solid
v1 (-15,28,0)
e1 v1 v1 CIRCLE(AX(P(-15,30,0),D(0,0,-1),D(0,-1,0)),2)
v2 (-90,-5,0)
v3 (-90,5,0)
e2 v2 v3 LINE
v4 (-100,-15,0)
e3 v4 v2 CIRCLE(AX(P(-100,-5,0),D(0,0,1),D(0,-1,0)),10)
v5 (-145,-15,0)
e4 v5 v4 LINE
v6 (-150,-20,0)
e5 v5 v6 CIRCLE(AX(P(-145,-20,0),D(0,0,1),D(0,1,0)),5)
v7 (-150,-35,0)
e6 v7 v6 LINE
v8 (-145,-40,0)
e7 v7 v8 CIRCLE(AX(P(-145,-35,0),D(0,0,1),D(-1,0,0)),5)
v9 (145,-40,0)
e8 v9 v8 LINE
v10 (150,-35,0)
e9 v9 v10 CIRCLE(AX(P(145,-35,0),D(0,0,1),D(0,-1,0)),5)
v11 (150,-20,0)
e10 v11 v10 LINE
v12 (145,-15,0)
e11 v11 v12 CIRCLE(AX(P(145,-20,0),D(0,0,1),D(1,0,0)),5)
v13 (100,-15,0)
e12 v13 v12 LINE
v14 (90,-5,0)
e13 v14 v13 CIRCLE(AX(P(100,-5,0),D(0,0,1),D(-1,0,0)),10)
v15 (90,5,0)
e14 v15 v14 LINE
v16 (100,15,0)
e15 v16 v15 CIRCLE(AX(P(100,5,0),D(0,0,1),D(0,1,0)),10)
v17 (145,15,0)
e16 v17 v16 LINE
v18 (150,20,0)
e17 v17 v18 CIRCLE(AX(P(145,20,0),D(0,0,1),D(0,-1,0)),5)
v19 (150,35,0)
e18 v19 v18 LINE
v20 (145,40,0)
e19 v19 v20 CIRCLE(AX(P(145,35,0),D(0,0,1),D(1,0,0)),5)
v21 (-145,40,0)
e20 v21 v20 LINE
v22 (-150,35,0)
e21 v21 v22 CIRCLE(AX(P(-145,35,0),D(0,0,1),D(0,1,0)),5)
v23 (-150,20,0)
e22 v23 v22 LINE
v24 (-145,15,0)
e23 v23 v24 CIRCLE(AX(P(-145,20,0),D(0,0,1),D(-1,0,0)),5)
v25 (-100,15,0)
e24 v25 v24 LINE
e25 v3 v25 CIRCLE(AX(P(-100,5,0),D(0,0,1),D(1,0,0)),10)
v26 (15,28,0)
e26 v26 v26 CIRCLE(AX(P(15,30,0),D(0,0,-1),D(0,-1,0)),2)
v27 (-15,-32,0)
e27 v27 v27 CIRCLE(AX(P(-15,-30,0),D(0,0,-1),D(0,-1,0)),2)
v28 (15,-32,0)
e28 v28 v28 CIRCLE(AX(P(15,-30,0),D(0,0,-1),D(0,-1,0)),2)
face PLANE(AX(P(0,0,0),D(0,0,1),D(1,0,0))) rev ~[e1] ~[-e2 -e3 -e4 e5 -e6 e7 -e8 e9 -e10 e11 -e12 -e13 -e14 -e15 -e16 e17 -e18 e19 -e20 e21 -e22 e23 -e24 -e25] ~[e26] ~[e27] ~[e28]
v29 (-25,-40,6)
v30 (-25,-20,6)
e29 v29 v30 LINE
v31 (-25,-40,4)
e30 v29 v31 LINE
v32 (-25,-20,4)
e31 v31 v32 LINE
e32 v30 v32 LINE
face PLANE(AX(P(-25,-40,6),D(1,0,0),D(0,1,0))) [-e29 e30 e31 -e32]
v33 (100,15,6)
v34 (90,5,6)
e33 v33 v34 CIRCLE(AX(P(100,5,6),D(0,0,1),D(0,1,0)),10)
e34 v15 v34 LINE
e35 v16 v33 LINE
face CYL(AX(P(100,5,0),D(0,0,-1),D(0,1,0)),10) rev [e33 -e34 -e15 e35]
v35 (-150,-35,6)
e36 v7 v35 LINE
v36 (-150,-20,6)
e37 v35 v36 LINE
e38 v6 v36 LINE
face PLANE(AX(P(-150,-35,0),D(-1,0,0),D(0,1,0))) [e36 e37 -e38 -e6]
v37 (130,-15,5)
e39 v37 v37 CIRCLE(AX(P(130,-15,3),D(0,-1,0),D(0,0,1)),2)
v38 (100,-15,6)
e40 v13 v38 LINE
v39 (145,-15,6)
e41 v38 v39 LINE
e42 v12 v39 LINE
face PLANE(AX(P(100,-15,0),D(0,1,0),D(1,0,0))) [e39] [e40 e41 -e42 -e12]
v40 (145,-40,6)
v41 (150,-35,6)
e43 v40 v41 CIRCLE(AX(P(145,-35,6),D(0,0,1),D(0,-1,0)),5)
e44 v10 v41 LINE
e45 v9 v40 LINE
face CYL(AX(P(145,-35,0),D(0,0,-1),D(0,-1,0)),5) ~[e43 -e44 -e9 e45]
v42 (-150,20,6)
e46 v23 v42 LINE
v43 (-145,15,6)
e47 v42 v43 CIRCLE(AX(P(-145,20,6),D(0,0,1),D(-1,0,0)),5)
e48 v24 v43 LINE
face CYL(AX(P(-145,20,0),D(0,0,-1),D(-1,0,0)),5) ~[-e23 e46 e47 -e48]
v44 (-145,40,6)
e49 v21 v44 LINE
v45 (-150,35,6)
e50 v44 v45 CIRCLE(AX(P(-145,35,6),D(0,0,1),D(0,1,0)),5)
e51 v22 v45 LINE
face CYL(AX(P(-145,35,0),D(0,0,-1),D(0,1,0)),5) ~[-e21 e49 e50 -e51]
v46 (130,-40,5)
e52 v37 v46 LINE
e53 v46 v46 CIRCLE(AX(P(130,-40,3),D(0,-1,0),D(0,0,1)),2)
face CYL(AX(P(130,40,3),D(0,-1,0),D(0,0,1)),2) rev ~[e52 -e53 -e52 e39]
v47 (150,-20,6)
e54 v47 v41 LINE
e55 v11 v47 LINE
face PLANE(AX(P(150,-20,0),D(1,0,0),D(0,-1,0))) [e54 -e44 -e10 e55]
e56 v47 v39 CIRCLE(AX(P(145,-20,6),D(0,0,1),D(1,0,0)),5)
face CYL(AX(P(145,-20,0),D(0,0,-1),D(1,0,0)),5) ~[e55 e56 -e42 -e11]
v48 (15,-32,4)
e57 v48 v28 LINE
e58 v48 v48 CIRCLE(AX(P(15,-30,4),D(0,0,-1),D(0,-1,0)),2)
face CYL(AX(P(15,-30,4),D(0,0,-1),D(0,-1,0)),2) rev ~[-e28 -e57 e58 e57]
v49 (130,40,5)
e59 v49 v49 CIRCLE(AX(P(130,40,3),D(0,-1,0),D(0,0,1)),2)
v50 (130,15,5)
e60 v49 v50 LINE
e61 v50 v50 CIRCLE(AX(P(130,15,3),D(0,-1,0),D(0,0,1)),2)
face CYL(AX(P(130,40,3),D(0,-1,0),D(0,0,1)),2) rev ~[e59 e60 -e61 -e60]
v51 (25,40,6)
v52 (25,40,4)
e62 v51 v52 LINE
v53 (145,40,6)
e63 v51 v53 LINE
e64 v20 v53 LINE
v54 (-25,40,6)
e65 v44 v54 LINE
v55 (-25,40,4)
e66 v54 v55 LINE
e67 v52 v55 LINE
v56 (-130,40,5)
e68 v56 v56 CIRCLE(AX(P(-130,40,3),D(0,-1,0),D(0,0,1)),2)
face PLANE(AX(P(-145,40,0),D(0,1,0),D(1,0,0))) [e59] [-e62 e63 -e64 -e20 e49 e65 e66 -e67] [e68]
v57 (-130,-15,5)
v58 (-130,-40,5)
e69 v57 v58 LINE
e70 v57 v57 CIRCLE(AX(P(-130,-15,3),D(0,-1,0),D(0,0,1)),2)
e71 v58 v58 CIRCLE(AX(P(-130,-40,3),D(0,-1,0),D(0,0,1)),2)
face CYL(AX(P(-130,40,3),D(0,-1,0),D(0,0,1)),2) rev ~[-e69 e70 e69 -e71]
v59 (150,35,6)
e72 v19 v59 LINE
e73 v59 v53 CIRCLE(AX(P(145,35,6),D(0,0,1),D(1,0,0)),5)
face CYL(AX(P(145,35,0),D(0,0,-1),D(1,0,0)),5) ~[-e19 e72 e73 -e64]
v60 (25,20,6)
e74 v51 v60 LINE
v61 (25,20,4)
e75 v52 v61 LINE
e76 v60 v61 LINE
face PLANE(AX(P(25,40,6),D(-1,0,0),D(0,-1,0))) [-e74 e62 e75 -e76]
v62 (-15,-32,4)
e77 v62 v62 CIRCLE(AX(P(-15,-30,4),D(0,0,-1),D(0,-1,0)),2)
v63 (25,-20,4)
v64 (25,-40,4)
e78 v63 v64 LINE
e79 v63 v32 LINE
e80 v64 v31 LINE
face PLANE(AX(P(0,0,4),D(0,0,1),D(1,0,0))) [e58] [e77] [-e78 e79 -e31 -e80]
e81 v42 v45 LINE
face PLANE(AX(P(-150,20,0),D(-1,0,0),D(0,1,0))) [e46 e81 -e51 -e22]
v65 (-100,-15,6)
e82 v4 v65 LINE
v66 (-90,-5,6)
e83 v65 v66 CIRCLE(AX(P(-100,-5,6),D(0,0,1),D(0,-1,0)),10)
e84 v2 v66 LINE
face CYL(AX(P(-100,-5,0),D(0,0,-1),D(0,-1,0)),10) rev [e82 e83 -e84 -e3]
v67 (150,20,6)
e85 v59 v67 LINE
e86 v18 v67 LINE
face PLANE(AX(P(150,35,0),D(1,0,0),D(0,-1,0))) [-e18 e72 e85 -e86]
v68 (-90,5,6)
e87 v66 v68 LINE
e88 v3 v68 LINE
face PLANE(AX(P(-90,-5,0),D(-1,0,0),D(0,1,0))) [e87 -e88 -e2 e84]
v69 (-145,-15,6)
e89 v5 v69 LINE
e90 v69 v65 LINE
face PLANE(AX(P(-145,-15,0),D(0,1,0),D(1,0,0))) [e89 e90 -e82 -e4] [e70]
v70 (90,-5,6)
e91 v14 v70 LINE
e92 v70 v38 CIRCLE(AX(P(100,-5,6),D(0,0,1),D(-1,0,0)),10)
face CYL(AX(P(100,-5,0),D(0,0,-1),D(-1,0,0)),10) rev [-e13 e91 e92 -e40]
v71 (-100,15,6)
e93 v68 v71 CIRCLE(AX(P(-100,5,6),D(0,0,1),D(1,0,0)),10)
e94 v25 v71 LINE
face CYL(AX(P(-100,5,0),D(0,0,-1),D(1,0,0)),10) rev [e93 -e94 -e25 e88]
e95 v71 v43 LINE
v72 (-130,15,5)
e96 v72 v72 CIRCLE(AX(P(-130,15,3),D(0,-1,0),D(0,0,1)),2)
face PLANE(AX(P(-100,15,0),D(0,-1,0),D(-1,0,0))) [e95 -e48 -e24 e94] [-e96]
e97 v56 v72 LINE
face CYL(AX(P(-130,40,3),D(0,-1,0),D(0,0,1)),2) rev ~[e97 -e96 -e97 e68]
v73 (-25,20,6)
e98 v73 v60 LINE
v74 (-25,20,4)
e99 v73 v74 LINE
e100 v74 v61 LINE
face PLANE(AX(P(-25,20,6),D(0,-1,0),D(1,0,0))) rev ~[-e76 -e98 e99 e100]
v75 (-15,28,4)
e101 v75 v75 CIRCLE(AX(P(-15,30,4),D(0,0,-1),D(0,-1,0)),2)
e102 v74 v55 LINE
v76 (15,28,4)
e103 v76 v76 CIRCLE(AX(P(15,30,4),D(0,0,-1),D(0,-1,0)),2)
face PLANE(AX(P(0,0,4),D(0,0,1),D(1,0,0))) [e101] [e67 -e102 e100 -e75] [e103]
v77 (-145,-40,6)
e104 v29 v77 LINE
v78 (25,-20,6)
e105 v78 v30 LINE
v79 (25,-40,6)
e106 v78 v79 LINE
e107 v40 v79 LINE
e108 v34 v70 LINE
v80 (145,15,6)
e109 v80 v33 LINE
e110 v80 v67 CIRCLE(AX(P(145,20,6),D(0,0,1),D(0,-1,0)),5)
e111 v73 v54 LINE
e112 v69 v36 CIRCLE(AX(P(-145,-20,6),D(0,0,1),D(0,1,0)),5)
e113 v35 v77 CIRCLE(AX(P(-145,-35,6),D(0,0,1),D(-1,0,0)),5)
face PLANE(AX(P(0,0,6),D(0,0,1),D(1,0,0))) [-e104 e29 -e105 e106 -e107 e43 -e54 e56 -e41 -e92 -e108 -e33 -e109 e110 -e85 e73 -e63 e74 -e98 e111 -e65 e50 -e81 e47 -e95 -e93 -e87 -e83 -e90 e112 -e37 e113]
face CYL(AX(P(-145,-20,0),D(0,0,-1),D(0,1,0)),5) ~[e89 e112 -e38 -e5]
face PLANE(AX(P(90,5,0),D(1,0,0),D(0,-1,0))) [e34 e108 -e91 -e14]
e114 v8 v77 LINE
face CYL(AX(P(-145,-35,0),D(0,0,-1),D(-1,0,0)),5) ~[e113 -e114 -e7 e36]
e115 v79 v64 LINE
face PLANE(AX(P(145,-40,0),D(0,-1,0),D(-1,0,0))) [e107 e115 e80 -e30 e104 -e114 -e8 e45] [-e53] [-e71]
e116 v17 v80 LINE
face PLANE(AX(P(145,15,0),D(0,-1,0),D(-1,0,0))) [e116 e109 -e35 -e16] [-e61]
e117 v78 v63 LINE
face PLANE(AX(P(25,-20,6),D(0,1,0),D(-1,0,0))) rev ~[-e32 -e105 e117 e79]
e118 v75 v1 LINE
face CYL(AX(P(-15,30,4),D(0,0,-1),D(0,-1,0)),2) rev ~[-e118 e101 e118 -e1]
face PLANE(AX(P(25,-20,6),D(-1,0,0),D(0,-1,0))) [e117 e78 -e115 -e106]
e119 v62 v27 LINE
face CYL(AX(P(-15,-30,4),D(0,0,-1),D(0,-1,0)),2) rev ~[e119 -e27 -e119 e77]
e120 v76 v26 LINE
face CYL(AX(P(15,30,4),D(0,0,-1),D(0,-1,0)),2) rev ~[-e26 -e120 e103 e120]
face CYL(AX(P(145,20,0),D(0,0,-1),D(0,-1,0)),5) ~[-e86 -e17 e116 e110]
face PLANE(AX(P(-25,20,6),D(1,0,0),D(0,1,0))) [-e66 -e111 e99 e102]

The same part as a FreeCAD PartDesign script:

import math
import FreeCAD as App
import Part
import Sketcher
Q = App.Units.Quantity


def add_polygon(sketch, points):
    """Adds a closed chain of lines whose ends are joined by coincident constraints."""
    first, n = sketch.GeometryCount, len(points)
    for a, b in zip(points, points[1:] + points[:1]):
        sketch.addGeometry(Part.LineSegment(App.Vector(*a, 0), App.Vector(*b, 0)), False)
    for i in range(n):
        sketch.addConstraint(Sketcher.Constraint("Coincident", first + i, 2, first + (i + 1) % n, 1))

doc = App.newDocument("Part")
body = doc.addObject("PartDesign::Body", "Body")

sketch1 = body.newObject("Sketcher::SketchObject", "Sketch")
sketch1.AttachmentSupport = (doc.getObject("XY_Plane"), [""])
sketch1.MapMode = "FlatFace"
sketch1.addGeometry([
    Part.LineSegment(App.Vector(-145, -40, 0), App.Vector(145, -40, 0)),
    Part.ArcOfCircle(Part.Circle(App.Vector(145, -35, 0), App.Vector(0, 0, 1), 5), math.radians(-90), math.radians(0)),
    Part.LineSegment(App.Vector(150, -35, 0), App.Vector(150, -20, 0)),
    Part.ArcOfCircle(Part.Circle(App.Vector(145, -20, 0), App.Vector(0, 0, 1), 5), math.radians(0), math.radians(90)),
    Part.LineSegment(App.Vector(145, -15, 0), App.Vector(100, -15, 0)),
    Part.ArcOfCircle(Part.Circle(App.Vector(100, -5, 0), App.Vector(0, 0, 1), 10), math.radians(180), math.radians(270)),
    Part.LineSegment(App.Vector(90, -5, 0), App.Vector(90, 5, 0)),
    Part.ArcOfCircle(Part.Circle(App.Vector(100, 5, 0), App.Vector(0, 0, 1), 10), math.radians(90), math.radians(180)),
    Part.LineSegment(App.Vector(100, 15, 0), App.Vector(145, 15, 0)),
    Part.ArcOfCircle(Part.Circle(App.Vector(145, 20, 0), App.Vector(0, 0, 1), 5), math.radians(-90), math.radians(0)),
    Part.LineSegment(App.Vector(150, 20, 0), App.Vector(150, 35, 0)),
    Part.ArcOfCircle(Part.Circle(App.Vector(145, 35, 0), App.Vector(0, 0, 1), 5), math.radians(0), math.radians(90)),
    Part.LineSegment(App.Vector(145, 40, 0), App.Vector(-145, 40, 0)),
    Part.ArcOfCircle(Part.Circle(App.Vector(-145, 35, 0), App.Vector(0, 0, 1), 5), math.radians(90), math.radians(180)),
    Part.LineSegment(App.Vector(-150, 35, 0), App.Vector(-150, 20, 0)),
    Part.ArcOfCircle(Part.Circle(App.Vector(-145, 20, 0), App.Vector(0, 0, 1), 5), math.radians(180), math.radians(270)),
    Part.LineSegment(App.Vector(-145, 15, 0), App.Vector(-100, 15, 0)),
    Part.ArcOfCircle(Part.Circle(App.Vector(-100, 5, 0), App.Vector(0, 0, 1), 10), math.radians(0), math.radians(90)),
    Part.LineSegment(App.Vector(-90, 5, 0), App.Vector(-90, -5, 0)),
    Part.ArcOfCircle(Part.Circle(App.Vector(-100, -5, 0), App.Vector(0, 0, 1), 10), math.radians(-90), math.radians(0)),
    Part.LineSegment(App.Vector(-100, -15, 0), App.Vector(-145, -15, 0)),
    Part.ArcOfCircle(Part.Circle(App.Vector(-145, -20, 0), App.Vector(0, 0, 1), 5), math.radians(90), math.radians(180)),
    Part.LineSegment(App.Vector(-150, -20, 0), App.Vector(-150, -35, 0)),
    Part.ArcOfCircle(Part.Circle(App.Vector(-145, -35, 0), App.Vector(0, 0, 1), 5), math.radians(180), math.radians(270)),
], False)
sketch1.addConstraint([
    Sketcher.Constraint("Tangent", 0, 2, 1, 1),
    Sketcher.Constraint("Tangent", 1, 2, 2, 1),
    Sketcher.Constraint("Tangent", 2, 2, 3, 1),
    Sketcher.Constraint("Tangent", 3, 2, 4, 1),
    Sketcher.Constraint("Tangent", 4, 2, 5, 2),
    Sketcher.Constraint("Tangent", 5, 1, 6, 1),
    Sketcher.Constraint("Tangent", 6, 2, 7, 2),
    Sketcher.Constraint("Tangent", 7, 1, 8, 1),
    Sketcher.Constraint("Tangent", 8, 2, 9, 1),
    Sketcher.Constraint("Tangent", 9, 2, 10, 1),
    Sketcher.Constraint("Tangent", 10, 2, 11, 1),
    Sketcher.Constraint("Tangent", 11, 2, 12, 1),
    Sketcher.Constraint("Tangent", 12, 2, 13, 1),
    Sketcher.Constraint("Tangent", 13, 2, 14, 1),
    Sketcher.Constraint("Tangent", 14, 2, 15, 1),
    Sketcher.Constraint("Tangent", 15, 2, 16, 1),
    Sketcher.Constraint("Tangent", 16, 2, 17, 2),
    Sketcher.Constraint("Tangent", 17, 1, 18, 1),
    Sketcher.Constraint("Tangent", 18, 2, 19, 2),
    Sketcher.Constraint("Tangent", 19, 1, 20, 1),
    Sketcher.Constraint("Tangent", 20, 2, 21, 1),
    Sketcher.Constraint("Tangent", 21, 2, 22, 1),
    Sketcher.Constraint("Tangent", 22, 2, 23, 1),
    Sketcher.Constraint("Tangent", 23, 2, 0, 1),
    Sketcher.Constraint("Horizontal", 0),
    Sketcher.Constraint("Vertical", 2),
    Sketcher.Constraint("Horizontal", 4),
    Sketcher.Constraint("Vertical", 6),
    Sketcher.Constraint("Horizontal", 8),
    Sketcher.Constraint("Vertical", 10),
    Sketcher.Constraint("Horizontal", 12),
    Sketcher.Constraint("Vertical", 14),
    Sketcher.Constraint("Horizontal", 16),
    Sketcher.Constraint("Vertical", 18),
    Sketcher.Constraint("Horizontal", 20),
    Sketcher.Constraint("Vertical", 22),
    Sketcher.Constraint("Equal", 1, 3),
    Sketcher.Constraint("Equal", 5, 7),
    Sketcher.Constraint("Equal", 3, 9),
    Sketcher.Constraint("Equal", 9, 11),
    Sketcher.Constraint("Equal", 11, 13),
    Sketcher.Constraint("Equal", 13, 15),
    Sketcher.Constraint("Equal", 7, 17),
    Sketcher.Constraint("Equal", 17, 19),
    Sketcher.Constraint("Equal", 15, 21),
    Sketcher.Constraint("Equal", 21, 23),
    Sketcher.Constraint("Symmetric", 1, 3, 13, 3, -1, 1),
    Sketcher.Constraint("Symmetric", 5, 3, 17, 3, -1, 1),
    Sketcher.Constraint("Symmetric", 9, 3, 21, 3, -1, 1),
    Sketcher.Constraint("Symmetric", 9, 3, 15, 3, -2),
    Sketcher.Constraint("Radius", 1, Q("5 mm")),
    Sketcher.Constraint("Radius", 5, Q("10 mm")),
    Sketcher.Constraint("DistanceY", 2, 1, 2, 2, Q("15 mm")),
    Sketcher.Constraint("DistanceY", 6, 1, 6, 2, Q("10 mm")),
    Sketcher.Constraint("DistanceX", -1, 1, 1, 2, Q("150 mm")),
    Sketcher.Constraint("DistanceX", 4, 2, 4, 1, Q("45 mm")),
])
pad1 = body.newObject("PartDesign::Pad", "Pad")
pad1.Profile = sketch1
pad1.Length = 6

sketch2 = body.newObject("Sketcher::SketchObject", "Sketch001")
sketch2.AttachmentSupport = (doc.getObject("XY_Plane"), [""])
sketch2.MapMode = "FlatFace"
sketch2.AttachmentOffset = App.Placement(App.Vector(0, 0, 6), App.Rotation())
add_polygon(sketch2, [(25, 20), (25, 40), (-25, 40), (-25, 20)])
add_polygon(sketch2, [(-25, -40), (25, -40), (25, -20), (-25, -20)])
sketch2.addConstraint([
    Sketcher.Constraint("Vertical", 0),
    Sketcher.Constraint("Horizontal", 1),
    Sketcher.Constraint("Vertical", 2),
    Sketcher.Constraint("Horizontal", 3),
    Sketcher.Constraint("Horizontal", 4),
    Sketcher.Constraint("Vertical", 5),
    Sketcher.Constraint("Horizontal", 6),
    Sketcher.Constraint("Vertical", 7),
    Sketcher.Constraint("Symmetric", 1, 2, 4, 2, -1, 1),
    Sketcher.Constraint("Symmetric", 3, 2, 6, 2, -1, 1),
    Sketcher.Constraint("Vertical", 3, 2, 4, 2),
    Sketcher.Constraint("DistanceX", 1, 2, 1, 1, Q("50 mm")),
    Sketcher.Constraint("DistanceY", 0, 1, 0, 2, Q("20 mm")),
    Sketcher.Constraint("DistanceY", -1, 1, 0, 2, Q("40 mm")),
])
pocket1 = body.newObject("PartDesign::Pocket", "Pocket")
pocket1.Profile = sketch2
pocket1.Length = 2

sketch3 = body.newObject("Sketcher::SketchObject", "Sketch002")
sketch3.AttachmentSupport = (doc.getObject("XY_Plane"), [""])
sketch3.MapMode = "FlatFace"
sketch3.AttachmentOffset = App.Placement(App.Vector(0, 0, 4), App.Rotation())
sketch3.addGeometry([
    Part.Circle(App.Vector(15, 30, 0), App.Vector(0, 0, 1), 2),
    Part.Circle(App.Vector(-15, 30, 0), App.Vector(0, 0, 1), 2),
    Part.Circle(App.Vector(15, -30, 0), App.Vector(0, 0, 1), 2),
    Part.Circle(App.Vector(-15, -30, 0), App.Vector(0, 0, 1), 2),
], False)
sketch3.addConstraint([
    Sketcher.Constraint("Equal", 0, 1),
    Sketcher.Constraint("Equal", 1, 2),
    Sketcher.Constraint("Equal", 2, 3),
    Sketcher.Constraint("Symmetric", 1, 3, 2, 3, -1, 1),
    Sketcher.Constraint("Symmetric", 0, 3, 3, 3, -1, 1),
    Sketcher.Constraint("Symmetric", 0, 3, 1, 3, -2),
    Sketcher.Constraint("Diameter", 0, Q("4 mm")),
    Sketcher.Constraint("DistanceX", -1, 1, 0, 3, Q("15 mm")),
    Sketcher.Constraint("DistanceY", -1, 1, 0, 3, Q("30 mm")),
])
doc.recompute()
hole = body.newObject("PartDesign::Hole", "Hole")
hole.Profile = sketch3
hole.ThreadType = "None"
hole.Diameter = 4
hole.DepthType = "ThroughAll"

sketch4 = body.newObject("Sketcher::SketchObject", "Sketch003")
sketch4.AttachmentSupport = (doc.getObject("XZ_Plane"), [""])
sketch4.MapMode = "FlatFace"
sketch4.AttachmentOffset = App.Placement(App.Vector(0, 0, -40), App.Rotation())
sketch4.addGeometry([
    Part.Circle(App.Vector(130, 3, 0), App.Vector(0, 0, 1), 2),
    Part.Circle(App.Vector(-130, 3, 0), App.Vector(0, 0, 1), 2),
], False)
sketch4.addConstraint([
    Sketcher.Constraint("Equal", 0, 1),
    Sketcher.Constraint("Symmetric", 0, 3, 1, 3, -2),
    Sketcher.Constraint("Diameter", 0, Q("4 mm")),
    Sketcher.Constraint("DistanceX", -1, 1, 0, 3, Q("130 mm")),
    Sketcher.Constraint("DistanceY", -1, 1, 0, 3, Q("3 mm")),
])
doc.recompute()
hole2 = body.newObject("PartDesign::Hole", "Hole001")
hole2.Profile = sketch4
hole2.ThreadType = "None"
hole2.Diameter = 4
hole2.DepthType = "ThroughAll"
hole2.Reversed = True

doc.recompute()
